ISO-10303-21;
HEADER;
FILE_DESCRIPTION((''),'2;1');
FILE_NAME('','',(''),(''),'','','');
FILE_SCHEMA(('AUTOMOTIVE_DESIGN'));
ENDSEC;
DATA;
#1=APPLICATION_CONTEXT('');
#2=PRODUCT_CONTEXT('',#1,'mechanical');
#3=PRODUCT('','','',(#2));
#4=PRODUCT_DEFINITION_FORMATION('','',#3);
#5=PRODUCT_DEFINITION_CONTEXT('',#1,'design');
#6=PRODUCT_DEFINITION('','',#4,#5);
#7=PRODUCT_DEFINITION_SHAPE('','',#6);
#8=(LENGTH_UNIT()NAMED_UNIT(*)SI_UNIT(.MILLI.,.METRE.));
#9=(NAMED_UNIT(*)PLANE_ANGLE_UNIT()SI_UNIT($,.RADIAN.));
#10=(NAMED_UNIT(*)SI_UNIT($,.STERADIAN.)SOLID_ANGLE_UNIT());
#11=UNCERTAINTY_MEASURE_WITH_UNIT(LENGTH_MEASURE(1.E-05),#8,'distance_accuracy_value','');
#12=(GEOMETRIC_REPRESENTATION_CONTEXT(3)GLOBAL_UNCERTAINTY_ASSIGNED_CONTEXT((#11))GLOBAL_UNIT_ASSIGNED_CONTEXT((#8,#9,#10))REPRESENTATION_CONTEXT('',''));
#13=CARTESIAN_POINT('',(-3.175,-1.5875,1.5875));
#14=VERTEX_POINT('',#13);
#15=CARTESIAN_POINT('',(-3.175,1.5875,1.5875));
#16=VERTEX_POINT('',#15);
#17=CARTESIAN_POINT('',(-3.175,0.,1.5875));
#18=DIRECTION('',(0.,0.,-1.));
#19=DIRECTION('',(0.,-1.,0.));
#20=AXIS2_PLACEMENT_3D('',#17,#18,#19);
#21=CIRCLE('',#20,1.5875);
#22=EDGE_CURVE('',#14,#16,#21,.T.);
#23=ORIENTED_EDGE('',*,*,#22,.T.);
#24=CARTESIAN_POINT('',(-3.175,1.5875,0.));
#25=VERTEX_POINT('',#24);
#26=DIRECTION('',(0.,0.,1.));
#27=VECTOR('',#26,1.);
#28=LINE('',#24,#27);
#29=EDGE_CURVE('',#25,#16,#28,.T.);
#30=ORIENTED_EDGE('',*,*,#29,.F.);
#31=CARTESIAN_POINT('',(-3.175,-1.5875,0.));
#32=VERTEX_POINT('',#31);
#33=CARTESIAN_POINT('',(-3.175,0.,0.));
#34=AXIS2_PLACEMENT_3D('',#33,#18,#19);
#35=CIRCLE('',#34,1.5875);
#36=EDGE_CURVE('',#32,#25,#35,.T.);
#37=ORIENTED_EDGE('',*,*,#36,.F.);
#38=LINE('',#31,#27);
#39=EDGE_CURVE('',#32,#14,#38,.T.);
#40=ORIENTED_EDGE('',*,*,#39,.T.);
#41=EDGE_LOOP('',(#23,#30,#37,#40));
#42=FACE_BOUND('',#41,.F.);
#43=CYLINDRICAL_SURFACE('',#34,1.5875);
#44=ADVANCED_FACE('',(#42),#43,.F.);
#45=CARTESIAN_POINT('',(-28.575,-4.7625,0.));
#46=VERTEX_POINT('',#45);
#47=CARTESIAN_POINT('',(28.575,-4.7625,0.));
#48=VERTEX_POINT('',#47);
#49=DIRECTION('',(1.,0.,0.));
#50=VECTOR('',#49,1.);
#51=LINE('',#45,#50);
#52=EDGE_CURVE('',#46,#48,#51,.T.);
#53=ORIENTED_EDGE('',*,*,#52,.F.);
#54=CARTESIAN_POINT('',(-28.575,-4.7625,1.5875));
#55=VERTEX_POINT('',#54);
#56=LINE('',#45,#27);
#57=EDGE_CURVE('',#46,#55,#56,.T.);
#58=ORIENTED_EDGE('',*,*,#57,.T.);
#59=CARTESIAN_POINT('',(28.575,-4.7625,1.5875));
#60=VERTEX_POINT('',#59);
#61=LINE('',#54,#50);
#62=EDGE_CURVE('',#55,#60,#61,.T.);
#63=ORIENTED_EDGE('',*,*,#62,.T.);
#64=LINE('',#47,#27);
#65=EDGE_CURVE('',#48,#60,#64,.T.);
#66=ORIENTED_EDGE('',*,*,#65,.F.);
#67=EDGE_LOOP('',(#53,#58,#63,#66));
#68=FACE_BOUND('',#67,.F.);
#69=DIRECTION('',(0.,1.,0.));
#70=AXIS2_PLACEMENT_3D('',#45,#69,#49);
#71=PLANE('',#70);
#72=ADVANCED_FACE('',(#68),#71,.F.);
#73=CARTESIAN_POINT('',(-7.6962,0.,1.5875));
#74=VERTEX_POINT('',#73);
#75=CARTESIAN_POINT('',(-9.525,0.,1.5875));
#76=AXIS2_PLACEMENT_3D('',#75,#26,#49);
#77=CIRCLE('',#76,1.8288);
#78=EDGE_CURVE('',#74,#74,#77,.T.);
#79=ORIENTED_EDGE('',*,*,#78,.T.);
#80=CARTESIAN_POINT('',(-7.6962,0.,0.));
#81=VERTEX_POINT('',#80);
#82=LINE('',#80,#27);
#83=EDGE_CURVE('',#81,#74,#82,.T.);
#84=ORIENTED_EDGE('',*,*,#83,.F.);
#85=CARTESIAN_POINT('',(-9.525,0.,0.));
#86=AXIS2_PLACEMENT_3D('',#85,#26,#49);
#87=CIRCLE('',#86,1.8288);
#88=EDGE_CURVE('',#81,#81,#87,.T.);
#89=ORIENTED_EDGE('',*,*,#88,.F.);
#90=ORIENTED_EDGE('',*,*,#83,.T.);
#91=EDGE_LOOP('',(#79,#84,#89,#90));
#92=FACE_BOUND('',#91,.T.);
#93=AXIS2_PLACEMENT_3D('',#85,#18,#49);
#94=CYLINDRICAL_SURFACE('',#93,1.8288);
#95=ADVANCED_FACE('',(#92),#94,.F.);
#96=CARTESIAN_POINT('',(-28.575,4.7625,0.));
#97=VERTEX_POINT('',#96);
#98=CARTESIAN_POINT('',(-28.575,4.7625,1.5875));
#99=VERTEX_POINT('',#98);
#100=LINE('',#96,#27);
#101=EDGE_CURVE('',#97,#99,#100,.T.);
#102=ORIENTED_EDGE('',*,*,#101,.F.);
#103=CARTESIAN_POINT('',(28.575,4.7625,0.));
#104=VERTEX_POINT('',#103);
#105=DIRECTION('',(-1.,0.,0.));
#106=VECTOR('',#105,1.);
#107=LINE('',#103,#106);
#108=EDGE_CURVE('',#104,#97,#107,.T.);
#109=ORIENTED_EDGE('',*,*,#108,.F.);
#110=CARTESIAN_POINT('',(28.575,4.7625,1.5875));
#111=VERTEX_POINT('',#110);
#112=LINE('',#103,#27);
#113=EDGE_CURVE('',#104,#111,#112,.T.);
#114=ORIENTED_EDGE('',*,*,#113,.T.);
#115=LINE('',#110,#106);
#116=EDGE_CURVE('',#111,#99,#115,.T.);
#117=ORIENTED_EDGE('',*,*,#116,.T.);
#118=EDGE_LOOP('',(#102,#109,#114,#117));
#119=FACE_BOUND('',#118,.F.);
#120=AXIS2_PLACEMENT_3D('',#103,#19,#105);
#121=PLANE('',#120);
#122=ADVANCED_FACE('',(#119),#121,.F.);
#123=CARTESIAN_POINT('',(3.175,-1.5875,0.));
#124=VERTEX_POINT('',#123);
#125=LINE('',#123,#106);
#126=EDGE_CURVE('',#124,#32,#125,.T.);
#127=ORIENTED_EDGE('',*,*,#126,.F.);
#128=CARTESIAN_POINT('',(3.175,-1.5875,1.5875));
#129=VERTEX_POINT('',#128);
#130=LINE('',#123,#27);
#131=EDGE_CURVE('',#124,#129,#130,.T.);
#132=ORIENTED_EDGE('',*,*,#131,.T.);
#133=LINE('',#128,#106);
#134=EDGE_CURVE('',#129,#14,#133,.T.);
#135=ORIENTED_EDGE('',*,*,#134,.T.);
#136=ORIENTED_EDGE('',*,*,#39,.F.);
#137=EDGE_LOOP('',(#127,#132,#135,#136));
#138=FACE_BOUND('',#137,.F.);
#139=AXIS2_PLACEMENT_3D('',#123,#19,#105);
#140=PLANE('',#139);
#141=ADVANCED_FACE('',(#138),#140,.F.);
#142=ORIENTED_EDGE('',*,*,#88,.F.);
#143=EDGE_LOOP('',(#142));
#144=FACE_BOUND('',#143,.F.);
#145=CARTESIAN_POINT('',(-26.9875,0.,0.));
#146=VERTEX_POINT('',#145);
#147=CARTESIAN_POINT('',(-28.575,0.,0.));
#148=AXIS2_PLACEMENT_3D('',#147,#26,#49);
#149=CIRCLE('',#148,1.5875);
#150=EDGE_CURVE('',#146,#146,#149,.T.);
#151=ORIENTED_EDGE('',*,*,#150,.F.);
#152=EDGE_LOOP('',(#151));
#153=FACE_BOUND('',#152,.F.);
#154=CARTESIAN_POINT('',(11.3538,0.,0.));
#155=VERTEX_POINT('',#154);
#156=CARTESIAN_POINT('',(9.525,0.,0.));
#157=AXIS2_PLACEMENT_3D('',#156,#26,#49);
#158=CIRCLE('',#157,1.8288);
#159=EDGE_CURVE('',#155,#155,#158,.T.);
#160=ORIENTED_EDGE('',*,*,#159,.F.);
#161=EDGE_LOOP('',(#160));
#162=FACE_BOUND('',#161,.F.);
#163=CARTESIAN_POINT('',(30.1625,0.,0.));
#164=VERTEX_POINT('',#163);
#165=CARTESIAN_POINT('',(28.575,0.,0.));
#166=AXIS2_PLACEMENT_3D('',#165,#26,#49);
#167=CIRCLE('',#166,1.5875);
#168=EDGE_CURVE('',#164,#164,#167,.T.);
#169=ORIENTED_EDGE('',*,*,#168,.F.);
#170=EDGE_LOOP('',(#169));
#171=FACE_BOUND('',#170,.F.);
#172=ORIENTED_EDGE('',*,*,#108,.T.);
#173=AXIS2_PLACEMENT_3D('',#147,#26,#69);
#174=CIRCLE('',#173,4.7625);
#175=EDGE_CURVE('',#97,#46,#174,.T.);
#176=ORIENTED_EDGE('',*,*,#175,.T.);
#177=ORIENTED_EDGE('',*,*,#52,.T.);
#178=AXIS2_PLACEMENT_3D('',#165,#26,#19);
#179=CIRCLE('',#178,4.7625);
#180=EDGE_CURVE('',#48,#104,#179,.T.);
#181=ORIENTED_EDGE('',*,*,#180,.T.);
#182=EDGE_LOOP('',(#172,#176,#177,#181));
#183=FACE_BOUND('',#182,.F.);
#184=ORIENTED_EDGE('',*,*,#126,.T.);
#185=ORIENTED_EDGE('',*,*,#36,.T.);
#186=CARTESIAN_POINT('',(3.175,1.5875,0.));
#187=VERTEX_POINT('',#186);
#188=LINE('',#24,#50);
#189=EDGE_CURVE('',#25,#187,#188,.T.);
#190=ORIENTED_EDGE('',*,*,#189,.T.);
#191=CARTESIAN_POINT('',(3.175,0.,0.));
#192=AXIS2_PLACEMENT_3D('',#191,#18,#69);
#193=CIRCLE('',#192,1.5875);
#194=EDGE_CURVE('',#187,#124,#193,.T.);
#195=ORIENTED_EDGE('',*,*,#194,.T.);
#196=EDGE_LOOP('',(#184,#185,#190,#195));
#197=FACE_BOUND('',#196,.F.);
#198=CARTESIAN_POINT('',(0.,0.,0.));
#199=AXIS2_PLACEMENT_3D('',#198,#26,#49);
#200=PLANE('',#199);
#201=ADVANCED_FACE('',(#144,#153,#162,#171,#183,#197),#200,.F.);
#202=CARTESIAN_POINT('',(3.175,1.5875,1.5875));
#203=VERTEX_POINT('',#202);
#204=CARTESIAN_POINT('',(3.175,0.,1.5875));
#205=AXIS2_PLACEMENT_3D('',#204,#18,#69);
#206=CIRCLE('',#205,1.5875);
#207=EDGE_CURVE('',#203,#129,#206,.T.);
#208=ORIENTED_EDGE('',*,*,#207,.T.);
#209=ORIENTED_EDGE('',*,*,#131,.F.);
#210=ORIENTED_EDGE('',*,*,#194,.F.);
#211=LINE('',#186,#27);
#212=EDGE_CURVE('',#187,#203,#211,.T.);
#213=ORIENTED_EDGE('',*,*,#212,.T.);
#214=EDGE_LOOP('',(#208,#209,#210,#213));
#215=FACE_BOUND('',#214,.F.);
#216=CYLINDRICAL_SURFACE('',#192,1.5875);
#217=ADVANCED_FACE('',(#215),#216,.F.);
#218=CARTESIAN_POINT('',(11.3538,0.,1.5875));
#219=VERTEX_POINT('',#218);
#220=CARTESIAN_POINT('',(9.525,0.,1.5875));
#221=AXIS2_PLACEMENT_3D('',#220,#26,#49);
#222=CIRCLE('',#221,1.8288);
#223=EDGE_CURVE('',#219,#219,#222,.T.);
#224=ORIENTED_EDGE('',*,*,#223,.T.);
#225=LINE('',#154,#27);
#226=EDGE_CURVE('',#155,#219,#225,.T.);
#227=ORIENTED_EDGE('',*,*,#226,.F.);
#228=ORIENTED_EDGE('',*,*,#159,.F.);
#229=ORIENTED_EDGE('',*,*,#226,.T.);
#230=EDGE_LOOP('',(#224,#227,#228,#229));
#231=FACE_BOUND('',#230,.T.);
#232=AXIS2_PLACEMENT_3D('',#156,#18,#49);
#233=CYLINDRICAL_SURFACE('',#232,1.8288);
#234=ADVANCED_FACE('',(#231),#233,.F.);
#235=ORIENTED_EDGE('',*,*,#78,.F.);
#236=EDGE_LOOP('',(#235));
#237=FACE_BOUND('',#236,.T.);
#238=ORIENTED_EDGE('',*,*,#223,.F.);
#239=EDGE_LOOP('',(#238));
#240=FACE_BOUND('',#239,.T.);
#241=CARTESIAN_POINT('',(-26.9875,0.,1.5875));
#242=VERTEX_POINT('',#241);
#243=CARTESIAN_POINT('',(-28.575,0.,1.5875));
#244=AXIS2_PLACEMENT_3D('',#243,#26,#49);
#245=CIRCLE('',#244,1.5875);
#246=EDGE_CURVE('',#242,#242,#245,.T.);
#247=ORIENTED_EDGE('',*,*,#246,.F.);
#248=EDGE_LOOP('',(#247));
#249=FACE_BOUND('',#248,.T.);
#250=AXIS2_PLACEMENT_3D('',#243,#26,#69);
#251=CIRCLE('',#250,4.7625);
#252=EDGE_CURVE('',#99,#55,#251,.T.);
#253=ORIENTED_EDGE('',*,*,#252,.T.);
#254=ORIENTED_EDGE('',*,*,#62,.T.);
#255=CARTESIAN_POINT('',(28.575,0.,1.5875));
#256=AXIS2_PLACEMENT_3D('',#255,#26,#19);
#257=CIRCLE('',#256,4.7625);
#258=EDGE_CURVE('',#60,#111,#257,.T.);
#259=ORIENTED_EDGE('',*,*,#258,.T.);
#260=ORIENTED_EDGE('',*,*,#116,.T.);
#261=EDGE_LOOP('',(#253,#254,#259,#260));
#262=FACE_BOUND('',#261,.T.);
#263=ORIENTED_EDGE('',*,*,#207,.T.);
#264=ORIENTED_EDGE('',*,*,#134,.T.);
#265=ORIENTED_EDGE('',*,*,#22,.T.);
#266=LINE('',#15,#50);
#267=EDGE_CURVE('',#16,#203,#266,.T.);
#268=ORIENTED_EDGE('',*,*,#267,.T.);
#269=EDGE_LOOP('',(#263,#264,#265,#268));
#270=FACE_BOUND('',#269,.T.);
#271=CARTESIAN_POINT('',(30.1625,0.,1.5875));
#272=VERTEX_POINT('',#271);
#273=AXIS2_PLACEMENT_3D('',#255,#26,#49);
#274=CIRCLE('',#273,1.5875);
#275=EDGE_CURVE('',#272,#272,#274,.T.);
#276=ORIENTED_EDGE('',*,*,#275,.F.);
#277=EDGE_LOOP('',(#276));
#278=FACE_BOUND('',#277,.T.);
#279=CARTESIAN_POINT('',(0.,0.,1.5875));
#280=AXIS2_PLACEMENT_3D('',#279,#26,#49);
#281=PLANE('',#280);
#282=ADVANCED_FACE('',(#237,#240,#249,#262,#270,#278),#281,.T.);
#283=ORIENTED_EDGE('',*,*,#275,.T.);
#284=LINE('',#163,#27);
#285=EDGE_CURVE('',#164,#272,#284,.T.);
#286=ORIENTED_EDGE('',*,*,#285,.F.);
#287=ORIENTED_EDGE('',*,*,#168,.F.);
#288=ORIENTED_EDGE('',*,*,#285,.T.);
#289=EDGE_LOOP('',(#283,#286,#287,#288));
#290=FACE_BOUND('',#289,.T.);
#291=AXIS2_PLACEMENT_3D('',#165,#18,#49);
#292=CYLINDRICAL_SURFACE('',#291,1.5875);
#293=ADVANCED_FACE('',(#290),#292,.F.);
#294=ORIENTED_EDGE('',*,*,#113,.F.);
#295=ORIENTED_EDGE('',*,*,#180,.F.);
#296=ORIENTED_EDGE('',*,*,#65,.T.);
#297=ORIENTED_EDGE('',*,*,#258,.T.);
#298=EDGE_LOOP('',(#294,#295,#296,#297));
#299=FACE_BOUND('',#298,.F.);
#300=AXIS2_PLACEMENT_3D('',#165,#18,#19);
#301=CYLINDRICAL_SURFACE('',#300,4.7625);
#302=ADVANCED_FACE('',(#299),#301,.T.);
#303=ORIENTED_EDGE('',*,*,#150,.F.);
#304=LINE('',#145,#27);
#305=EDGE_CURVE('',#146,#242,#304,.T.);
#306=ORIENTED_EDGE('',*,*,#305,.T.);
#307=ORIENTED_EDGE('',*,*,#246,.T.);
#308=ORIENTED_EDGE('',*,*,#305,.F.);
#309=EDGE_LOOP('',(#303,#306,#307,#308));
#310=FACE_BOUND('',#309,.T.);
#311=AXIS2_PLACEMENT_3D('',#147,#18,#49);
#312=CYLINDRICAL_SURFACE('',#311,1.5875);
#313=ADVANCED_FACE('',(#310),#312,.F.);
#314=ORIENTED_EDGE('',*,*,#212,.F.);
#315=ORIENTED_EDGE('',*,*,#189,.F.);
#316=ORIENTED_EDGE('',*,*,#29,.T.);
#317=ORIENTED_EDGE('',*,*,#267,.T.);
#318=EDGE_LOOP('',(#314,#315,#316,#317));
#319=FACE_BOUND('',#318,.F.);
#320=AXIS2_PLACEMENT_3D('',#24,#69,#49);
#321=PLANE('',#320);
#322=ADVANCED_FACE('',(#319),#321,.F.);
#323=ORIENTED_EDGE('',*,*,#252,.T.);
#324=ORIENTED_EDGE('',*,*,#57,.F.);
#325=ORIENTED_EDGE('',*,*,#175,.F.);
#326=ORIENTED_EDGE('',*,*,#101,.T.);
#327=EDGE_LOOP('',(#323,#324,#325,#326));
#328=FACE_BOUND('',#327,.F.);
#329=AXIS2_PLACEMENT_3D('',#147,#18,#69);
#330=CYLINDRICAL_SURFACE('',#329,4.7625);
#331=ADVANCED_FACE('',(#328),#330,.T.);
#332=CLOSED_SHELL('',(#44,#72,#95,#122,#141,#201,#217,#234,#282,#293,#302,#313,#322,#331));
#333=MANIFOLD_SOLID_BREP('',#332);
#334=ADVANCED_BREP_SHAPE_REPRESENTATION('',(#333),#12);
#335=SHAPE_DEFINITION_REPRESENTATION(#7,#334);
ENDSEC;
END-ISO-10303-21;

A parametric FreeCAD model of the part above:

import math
import FreeCAD as App
import Part
import Sketcher
Q = App.Units.Quantity

doc = App.newDocument("Part")
body = doc.addObject("PartDesign::Body", "Body")

# Sketch on XY plane
sketch1 = body.newObject("Sketcher::SketchObject", "Sketch")
sketch1.AttachmentSupport = (doc.getObject("XY_Plane"), [""])
sketch1.MapMode = "FlatFace"
sketch1.addGeometry([
    Part.ArcOfCircle(Part.Circle(App.Vector(28.6, 0, 0), App.Vector(0, 0, 1), 4.8), math.radians(-90), math.radians(90)),  # 0
    Part.LineSegment(App.Vector(28.6, 4.8, 0), App.Vector(-28.6, 4.8, 0)),  # 1
    Part.ArcOfCircle(Part.Circle(App.Vector(-28.6, 0, 0), App.Vector(0, 0, 1), 4.8), math.radians(90), math.radians(270)),  # 2
    Part.LineSegment(App.Vector(-28.6, -4.8, 0), App.Vector(28.6, -4.8, 0)),  # 3
    Part.Circle(App.Vector(-28.6, 0, 0), App.Vector(0, 0, 1), 1.6),  # 4
    Part.Circle(App.Vector(-9.5, 0, 0), App.Vector(0, 0, 1), 1.8),  # 5
    Part.LineSegment(App.Vector(-3.2, 1.6, 0), App.Vector(3.2, 1.6, 0)),  # 6
    Part.ArcOfCircle(Part.Circle(App.Vector(3.2, 0, 0), App.Vector(0, 0, 1), 1.6), math.radians(-90), math.radians(90)),  # 7
    Part.LineSegment(App.Vector(3.2, -1.6, 0), App.Vector(-3.2, -1.6, 0)),  # 8
    Part.ArcOfCircle(Part.Circle(App.Vector(-3.2, 0, 0), App.Vector(0, 0, 1), 1.6), math.radians(90), math.radians(270)),  # 9
    Part.Circle(App.Vector(9.5, 0, 0), App.Vector(0, 0, 1), 1.8),  # 10
    Part.Circle(App.Vector(28.6, 0, 0), App.Vector(0, 0, 1), 1.6),  # 11
], False)
sketch1.addConstraint([
    Sketcher.Constraint("Tangent", 0, 2, 1, 1),
    Sketcher.Constraint("Tangent", 1, 2, 2, 1),
    Sketcher.Constraint("Tangent", 2, 2, 3, 1),
    Sketcher.Constraint("Tangent", 3, 2, 0, 1),
    Sketcher.Constraint("Tangent", 6, 2, 7, 2),
    Sketcher.Constraint("Tangent", 7, 1, 8, 1),
    Sketcher.Constraint("Tangent", 8, 2, 9, 2),
    Sketcher.Constraint("Tangent", 9, 1, 6, 1),
    Sketcher.Constraint("Horizontal", 1),
    Sketcher.Constraint("Horizontal", 3),
    Sketcher.Constraint("Horizontal", 6),
    Sketcher.Constraint("Horizontal", 8),
    Sketcher.Constraint("Coincident", 4, 3, 2, 3),
    Sketcher.Constraint("Coincident", 11, 3, 0, 3),
    Sketcher.Constraint("Equal", 4, 7),
    Sketcher.Constraint("Equal", 5, 10),
    Sketcher.Constraint("Equal", 9, 11),
    Sketcher.Constraint("Symmetric", 0, 3, 2, 3, -1, 1),
    Sketcher.Constraint("Symmetric", 7, 3, 9, 3, -1, 1),
    Sketcher.Constraint("Symmetric", 5, 3, 10, 3, -1, 1),
    Sketcher.Constraint("PointOnObject", 5, 3, -1),
    Sketcher.Constraint("Diameter", 4, Q("0.125 in")),
    Sketcher.Constraint("Diameter", 5, Q("0.144 in")),
    Sketcher.Constraint("Radius", 0, Q("0.1875 in")),
    Sketcher.Constraint("DistanceX", 7, 3, 0, 3, Q("1 in")),
    Sketcher.Constraint("DistanceX", 1, 2, 1, 1, Q("2.25 in")),
    Sketcher.Constraint("DistanceX", 5, 3, 0, 3, Q("1.5 in")),
])
pad1 = body.newObject("PartDesign::Pad", "Pad")
pad1.Profile = sketch1
pad1.Length = Q("0.0625 in")

doc.recompute()
